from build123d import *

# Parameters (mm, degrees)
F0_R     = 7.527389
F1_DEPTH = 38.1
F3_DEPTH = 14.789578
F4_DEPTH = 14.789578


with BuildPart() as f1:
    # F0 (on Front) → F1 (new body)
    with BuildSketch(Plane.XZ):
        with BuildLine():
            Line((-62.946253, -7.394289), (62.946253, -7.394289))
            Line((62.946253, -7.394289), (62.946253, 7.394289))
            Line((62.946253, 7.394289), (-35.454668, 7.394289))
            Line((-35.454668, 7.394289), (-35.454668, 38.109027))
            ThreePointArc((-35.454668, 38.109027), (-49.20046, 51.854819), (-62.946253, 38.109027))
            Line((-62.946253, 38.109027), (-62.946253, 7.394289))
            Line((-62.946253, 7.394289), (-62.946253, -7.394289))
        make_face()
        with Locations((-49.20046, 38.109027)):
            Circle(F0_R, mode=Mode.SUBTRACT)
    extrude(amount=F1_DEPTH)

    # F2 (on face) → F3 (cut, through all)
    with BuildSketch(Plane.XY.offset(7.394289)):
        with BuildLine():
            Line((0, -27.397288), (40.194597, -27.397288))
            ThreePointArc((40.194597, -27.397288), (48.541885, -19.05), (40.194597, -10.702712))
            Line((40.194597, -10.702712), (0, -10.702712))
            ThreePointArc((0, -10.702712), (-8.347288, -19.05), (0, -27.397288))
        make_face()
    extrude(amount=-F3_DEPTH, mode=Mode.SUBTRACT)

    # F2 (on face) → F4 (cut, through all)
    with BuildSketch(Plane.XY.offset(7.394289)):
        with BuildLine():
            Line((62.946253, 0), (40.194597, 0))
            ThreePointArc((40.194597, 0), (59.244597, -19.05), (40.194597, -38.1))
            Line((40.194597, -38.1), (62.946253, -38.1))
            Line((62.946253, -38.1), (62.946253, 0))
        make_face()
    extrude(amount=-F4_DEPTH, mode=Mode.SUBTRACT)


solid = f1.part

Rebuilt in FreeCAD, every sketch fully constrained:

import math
import FreeCAD as App
import Part
import Sketcher
Q = App.Units.Quantity

doc = App.newDocument("Part")
body = doc.addObject("PartDesign::Body", "Body")

# Sketch on XZ plane
sketch1 = doc.addObject("Sketcher::SketchObject", "Sketch")
body.addObject(sketch1)
sketch1.AttachmentSupport = (doc.XZ_Plane, [""])
sketch1.MapMode = "FlatFace"
sketch1.addGeometry([
    Part.LineSegment(App.Vector(-63, -7, 0), App.Vector(63, -7, 0)),  # 0
    Part.LineSegment(App.Vector(63, -7, 0), App.Vector(63, 7, 0)),  # 1
    Part.LineSegment(App.Vector(63, 7, 0), App.Vector(-35, 7, 0)),  # 2
    Part.LineSegment(App.Vector(-35, 7, 0), App.Vector(-35, 38, 0)),  # 3
    Part.ArcOfCircle(Part.Circle(App.Vector(-49, 38, 0), App.Vector(0, 0, 1), 14), math.radians(0), math.radians(180)),  # 4
    Part.LineSegment(App.Vector(-63, 38, 0), App.Vector(-63, -7, 0)),  # 5
    Part.Circle(App.Vector(-49, 38, 0), App.Vector(0, 0, 1), 8),  # 6
], False)
sketch1.addConstraint([
    Sketcher.Constraint("Coincident", 0, 2, 1, 1),
    Sketcher.Constraint("Coincident", 1, 2, 2, 1),
    Sketcher.Constraint("Coincident", 2, 2, 3, 1),
    Sketcher.Constraint("Tangent", 3, 2, 4, 1),
    Sketcher.Constraint("Tangent", 4, 2, 5, 1),
    Sketcher.Constraint("Coincident", 5, 2, 0, 1),
    Sketcher.Constraint("Horizontal", 0),
    Sketcher.Constraint("Vertical", 1),
    Sketcher.Constraint("Horizontal", 2),
    Sketcher.Constraint("Vertical", 3),
    Sketcher.Constraint("Vertical", 5),
    Sketcher.Constraint("Coincident", 6, 3, 4, 3),
    Sketcher.Constraint("Symmetric", 1, 2, 5, 2, -1, 1),
    Sketcher.Constraint("Diameter", 6, Q("15.054778 mm")),
    Sketcher.Constraint("Radius", 4, Q("13.745793 mm")),
    Sketcher.Constraint("DistanceX", 2, 2, 2, 1, Q("98.400921 mm")),
    Sketcher.Constraint("DistanceY", 1, 1, 1, 2, Q("14.788578 mm")),
    Sketcher.Constraint("DistanceY", 3, 1, 3, 2, Q("30.714738 mm")),
])
pad1 = doc.addObject("PartDesign::Pad", "Pad")
body.addObject(pad1)
pad1.Profile = sketch1
pad1.Length = Q("1.5 in")

# Sketch on XY plane
sketch2 = doc.addObject("Sketcher::SketchObject", "Sketch001")
body.addObject(sketch2)
sketch2.AttachmentSupport = (doc.XY_Plane, [""])
sketch2.MapMode = "FlatFace"
sketch2.AttachmentOffset = App.Placement(App.Vector(0, 0, 7.394289), App.Rotation())
sketch2.addGeometry([
    Part.LineSegment(App.Vector(0, -27, 0), App.Vector(40, -27, 0)),
    Part.ArcOfCircle(Part.Circle(App.Vector(40, -19, 0), App.Vector(0, 0, 1), 8), math.radians(-90), math.radians(90)),
    Part.LineSegment(App.Vector(40, -11, 0), App.Vector(0, -11, 0)),
    Part.ArcOfCircle(Part.Circle(App.Vector(0, -19, 0), App.Vector(0, 0, 1), 8), math.radians(90), math.radians(270)),
], False)
sketch2.addConstraint([
    Sketcher.Constraint("Tangent", 0, 2, 1, 1),
    Sketcher.Constraint("Tangent", 1, 2, 2, 1),
    Sketcher.Constraint("Tangent", 2, 2, 3, 1),
    Sketcher.Constraint("Tangent", 3, 2, 0, 1),
    Sketcher.Constraint("Horizontal", 0),
    Sketcher.Constraint("Horizontal", 2),
    Sketcher.Constraint("PointOnObject", 3, 3, -2),
    Sketcher.Constraint("DistanceY", 1, 3, -1, 1, Q("0.75 in")),
    Sketcher.Constraint("Radius", 1, Q("8.347288 mm")),
    Sketcher.Constraint("DistanceX", 0, 1, 0, 2, Q("40.194597 mm")),
])
pocket1 = doc.addObject("PartDesign::Pocket", "Pocket")
body.addObject(pocket1)
pocket1.Profile = sketch2
pocket1.Type = "ThroughAll"

# Sketch on XY plane
sketch3 = doc.addObject("Sketcher::SketchObject", "Sketch002")
body.addObject(sketch3)
sketch3.AttachmentSupport = (doc.XY_Plane, [""])
sketch3.MapMode = "FlatFace"
sketch3.AttachmentOffset = App.Placement(App.Vector(0, 0, 7.394289), App.Rotation())
sketch3.addGeometry([
    Part.LineSegment(App.Vector(63, 0, 0), App.Vector(40, 0, 0)),
    Part.ArcOfCircle(Part.Circle(App.Vector(40, -19, 0), App.Vector(0, 0, 1), 19), math.radians(-90), math.radians(90)),
    Part.LineSegment(App.Vector(40, -38, 0), App.Vector(63, -38, 0)),
    Part.LineSegment(App.Vector(63, -38, 0), App.Vector(63, 0, 0)),
], False)
sketch3.addConstraint([
    Sketcher.Constraint("Tangent", 0, 2, 1, 2),
    Sketcher.Constraint("Tangent", 1, 1, 2, 1),
    Sketcher.Constraint("Coincident", 2, 2, 3, 1),
    Sketcher.Constraint("Coincident", 3, 2, 0, 1),
    Sketcher.Constraint("Horizontal", 0),
    Sketcher.Constraint("Horizontal", 2),
    Sketcher.Constraint("Vertical", 3),
    Sketcher.Constraint("PointOnObject", 0, 2, -1),
    Sketcher.Constraint("Radius", 1, Q("0.75 in")),
    Sketcher.Constraint("DistanceX", 0, 2, 0, 1, Q("22.751656 mm")),
    Sketcher.Constraint("DistanceX", -1, 1, 1, 3, Q("40.194597 mm")),
])
pocket2 = doc.addObject("PartDesign::Pocket", "Pocket001")
body.addObject(pocket2)
pocket2.Profile = sketch3
pocket2.Type = "ThroughAll"

doc.recompute()
